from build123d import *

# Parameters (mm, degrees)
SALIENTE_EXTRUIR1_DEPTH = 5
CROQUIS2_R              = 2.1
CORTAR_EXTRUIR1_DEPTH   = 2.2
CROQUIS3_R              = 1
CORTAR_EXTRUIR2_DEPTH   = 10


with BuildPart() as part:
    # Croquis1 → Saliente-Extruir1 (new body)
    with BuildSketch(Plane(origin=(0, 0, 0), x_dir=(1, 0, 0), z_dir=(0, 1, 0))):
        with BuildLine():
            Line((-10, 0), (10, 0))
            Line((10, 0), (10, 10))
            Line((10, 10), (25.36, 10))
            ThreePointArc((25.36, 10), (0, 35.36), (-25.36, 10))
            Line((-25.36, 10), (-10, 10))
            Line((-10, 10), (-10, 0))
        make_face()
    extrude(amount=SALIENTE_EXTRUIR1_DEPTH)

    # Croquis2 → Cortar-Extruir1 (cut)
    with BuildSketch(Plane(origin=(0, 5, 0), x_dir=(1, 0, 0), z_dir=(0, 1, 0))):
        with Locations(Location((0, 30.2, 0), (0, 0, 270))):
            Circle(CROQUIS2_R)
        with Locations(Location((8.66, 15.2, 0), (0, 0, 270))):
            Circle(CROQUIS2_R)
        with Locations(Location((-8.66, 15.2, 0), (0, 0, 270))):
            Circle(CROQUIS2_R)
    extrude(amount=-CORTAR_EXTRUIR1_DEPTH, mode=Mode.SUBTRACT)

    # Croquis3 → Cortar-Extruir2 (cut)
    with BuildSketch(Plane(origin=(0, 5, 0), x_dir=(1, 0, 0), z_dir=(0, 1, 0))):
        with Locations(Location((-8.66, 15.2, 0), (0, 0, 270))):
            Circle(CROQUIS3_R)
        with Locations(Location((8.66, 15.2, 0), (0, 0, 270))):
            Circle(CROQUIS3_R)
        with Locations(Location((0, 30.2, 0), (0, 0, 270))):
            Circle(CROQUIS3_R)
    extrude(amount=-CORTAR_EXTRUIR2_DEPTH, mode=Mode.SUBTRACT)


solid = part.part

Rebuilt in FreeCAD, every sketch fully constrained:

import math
import FreeCAD as App
import Part
import Sketcher

doc = App.newDocument("Part")
body = doc.addObject("PartDesign::Body", "Body")

# Sketch on XZ plane
sketch1 = body.newObject("Sketcher::SketchObject", "Sketch")
sketch1.AttachmentSupport = (doc.getObject("XZ_Plane"), [""])
sketch1.MapMode = "FlatFace"
sketch1.addGeometry(Part.LineSegment(App.Vector(-10, 0, 0), App.Vector(10, 0, 0)), False)
sketch1.addGeometry(Part.LineSegment(App.Vector(10, 0, 0), App.Vector(10, -10, 0)), False)
sketch1.addGeometry(Part.LineSegment(App.Vector(10, -10, 0), App.Vector(25, -10, 0)), False)
sketch1.addGeometry(Part.ArcOfCircle(Part.Circle(App.Vector(0, -10, 0), App.Vector(0, 0, 1), 25), math.radians(180), math.radians(360)), False)
sketch1.addGeometry(Part.LineSegment(App.Vector(-25, -10, 0), App.Vector(-10, -10, 0)), False)
sketch1.addGeometry(Part.LineSegment(App.Vector(-10, -10, 0), App.Vector(-10, 0, 0)), False)
sketch1.addConstraint(Sketcher.Constraint("Coincident", 0, 2, 1, 1))
sketch1.addConstraint(Sketcher.Constraint("Coincident", 1, 2, 2, 1))
sketch1.addConstraint(Sketcher.Constraint("Coincident", 2, 2, 3, 2))
sketch1.addConstraint(Sketcher.Constraint("Coincident", 3, 1, 4, 1))
sketch1.addConstraint(Sketcher.Constraint("Coincident", 4, 2, 5, 1))
sketch1.addConstraint(Sketcher.Constraint("Coincident", 5, 2, 0, 1))
sketch1.addConstraint(Sketcher.Constraint("Horizontal", 0))
sketch1.addConstraint(Sketcher.Constraint("Vertical", 1))
sketch1.addConstraint(Sketcher.Constraint("Horizontal", 2))
sketch1.addConstraint(Sketcher.Constraint("Horizontal", 4))
sketch1.addConstraint(Sketcher.Constraint("Vertical", 5))
sketch1.addConstraint(Sketcher.Constraint("Symmetric", 0, 2, 5, 2, -1, 1))
sketch1.addConstraint(Sketcher.Constraint("Symmetric", 2, 2, 3, 1, -2))
sketch1.addConstraint(Sketcher.Constraint("Horizontal", 3, 3, 1, 2))
sketch1.addConstraint(Sketcher.Constraint("DistanceX", 0, 1, 0, 2, 20.0))
sketch1.addConstraint(Sketcher.Constraint("DistanceY", 1, 2, 1, 1, 10.0))
sketch1.addConstraint(Sketcher.Constraint("Radius", 3, 25.36))
pad1 = body.newObject("PartDesign::Pad", "Pad")
pad1.Profile = sketch1
pad1.Length = 5
pad1.Reversed = True

# Sketch on XZ plane
sketch2 = body.newObject("Sketcher::SketchObject", "Sketch001")
sketch2.AttachmentSupport = (doc.getObject("XZ_Plane"), [""])
sketch2.MapMode = "FlatFace"
sketch2.AttachmentOffset = App.Placement(App.Vector(0, 0, -5), App.Rotation())
sketch2.addGeometry(Part.Circle(App.Vector(0, -30.2, 0), App.Vector(0, 0, 1), 2.1), False)
sketch2.addGeometry(Part.Circle(App.Vector(8.7, -15.2, 0), App.Vector(0, 0, 1), 2.1), False)
sketch2.addGeometry(Part.Circle(App.Vector(-8.7, -15.2, 0), App.Vector(0, 0, 1), 2.1), False)
sketch2.addConstraint(Sketcher.Constraint("Equal", 0, 1))
sketch2.addConstraint(Sketcher.Constraint("Equal", 1, 2))
sketch2.addConstraint(Sketcher.Constraint("Symmetric", 1, 3, 2, 3, -2))
sketch2.addConstraint(Sketcher.Constraint("PointOnObject", 0, 3, -2))
sketch2.addConstraint(Sketcher.Constraint("Diameter", 0, 4.2))
sketch2.addConstraint(Sketcher.Constraint("DistanceY", 0, 3, 1, 3, 15.0))
sketch2.addConstraint(Sketcher.Constraint("DistanceY", 0, 3, -1, 1, 30.2))
sketch2.addConstraint(Sketcher.Constraint("DistanceX", -1, 1, 1, 3, 8.66))
pocket1 = body.newObject("PartDesign::Pocket", "Pocket")
pocket1.Profile = sketch2
pocket1.Length = 2.2
pocket1.Reversed = True

# Sketch on XZ plane
sketch3 = body.newObject("Sketcher::SketchObject", "Sketch002")
sketch3.AttachmentSupport = (doc.getObject("XZ_Plane"), [""])
sketch3.MapMode = "FlatFace"
sketch3.AttachmentOffset = App.Placement(App.Vector(0, 0, -5), App.Rotation())
sketch3.addGeometry(Part.Circle(App.Vector(-8.7, -15.2, 0), App.Vector(0, 0, 1), 1), False)
sketch3.addGeometry(Part.Circle(App.Vector(8.7, -15.2, 0), App.Vector(0, 0, 1), 1), False)
sketch3.addGeometry(Part.Circle(App.Vector(0, -30.2, 0), App.Vector(0, 0, 1), 1), False)
sketch3.addConstraint(Sketcher.Constraint("Equal", 0, 1))
sketch3.addConstraint(Sketcher.Constraint("Equal", 1, 2))
sketch3.addConstraint(Sketcher.Constraint("Symmetric", 0, 3, 1, 3, -2))
sketch3.addConstraint(Sketcher.Constraint("PointOnObject", 2, 3, -2))
sketch3.addConstraint(Sketcher.Constraint("Diameter", 0, 2.0))
sketch3.addConstraint(Sketcher.Constraint("DistanceY", 2, 3, 0, 3, 15.0))
sketch3.addConstraint(Sketcher.Constraint("DistanceY", 0, 3, -1, 1, 15.2))
sketch3.addConstraint(Sketcher.Constraint("DistanceX", 0, 3, -1, 1, 8.66))
pocket2 = body.newObject("PartDesign::Pocket", "Pocket001")
pocket2.Profile = sketch3
pocket2.Length = 10
pocket2.Reversed = True

doc.recompute()
